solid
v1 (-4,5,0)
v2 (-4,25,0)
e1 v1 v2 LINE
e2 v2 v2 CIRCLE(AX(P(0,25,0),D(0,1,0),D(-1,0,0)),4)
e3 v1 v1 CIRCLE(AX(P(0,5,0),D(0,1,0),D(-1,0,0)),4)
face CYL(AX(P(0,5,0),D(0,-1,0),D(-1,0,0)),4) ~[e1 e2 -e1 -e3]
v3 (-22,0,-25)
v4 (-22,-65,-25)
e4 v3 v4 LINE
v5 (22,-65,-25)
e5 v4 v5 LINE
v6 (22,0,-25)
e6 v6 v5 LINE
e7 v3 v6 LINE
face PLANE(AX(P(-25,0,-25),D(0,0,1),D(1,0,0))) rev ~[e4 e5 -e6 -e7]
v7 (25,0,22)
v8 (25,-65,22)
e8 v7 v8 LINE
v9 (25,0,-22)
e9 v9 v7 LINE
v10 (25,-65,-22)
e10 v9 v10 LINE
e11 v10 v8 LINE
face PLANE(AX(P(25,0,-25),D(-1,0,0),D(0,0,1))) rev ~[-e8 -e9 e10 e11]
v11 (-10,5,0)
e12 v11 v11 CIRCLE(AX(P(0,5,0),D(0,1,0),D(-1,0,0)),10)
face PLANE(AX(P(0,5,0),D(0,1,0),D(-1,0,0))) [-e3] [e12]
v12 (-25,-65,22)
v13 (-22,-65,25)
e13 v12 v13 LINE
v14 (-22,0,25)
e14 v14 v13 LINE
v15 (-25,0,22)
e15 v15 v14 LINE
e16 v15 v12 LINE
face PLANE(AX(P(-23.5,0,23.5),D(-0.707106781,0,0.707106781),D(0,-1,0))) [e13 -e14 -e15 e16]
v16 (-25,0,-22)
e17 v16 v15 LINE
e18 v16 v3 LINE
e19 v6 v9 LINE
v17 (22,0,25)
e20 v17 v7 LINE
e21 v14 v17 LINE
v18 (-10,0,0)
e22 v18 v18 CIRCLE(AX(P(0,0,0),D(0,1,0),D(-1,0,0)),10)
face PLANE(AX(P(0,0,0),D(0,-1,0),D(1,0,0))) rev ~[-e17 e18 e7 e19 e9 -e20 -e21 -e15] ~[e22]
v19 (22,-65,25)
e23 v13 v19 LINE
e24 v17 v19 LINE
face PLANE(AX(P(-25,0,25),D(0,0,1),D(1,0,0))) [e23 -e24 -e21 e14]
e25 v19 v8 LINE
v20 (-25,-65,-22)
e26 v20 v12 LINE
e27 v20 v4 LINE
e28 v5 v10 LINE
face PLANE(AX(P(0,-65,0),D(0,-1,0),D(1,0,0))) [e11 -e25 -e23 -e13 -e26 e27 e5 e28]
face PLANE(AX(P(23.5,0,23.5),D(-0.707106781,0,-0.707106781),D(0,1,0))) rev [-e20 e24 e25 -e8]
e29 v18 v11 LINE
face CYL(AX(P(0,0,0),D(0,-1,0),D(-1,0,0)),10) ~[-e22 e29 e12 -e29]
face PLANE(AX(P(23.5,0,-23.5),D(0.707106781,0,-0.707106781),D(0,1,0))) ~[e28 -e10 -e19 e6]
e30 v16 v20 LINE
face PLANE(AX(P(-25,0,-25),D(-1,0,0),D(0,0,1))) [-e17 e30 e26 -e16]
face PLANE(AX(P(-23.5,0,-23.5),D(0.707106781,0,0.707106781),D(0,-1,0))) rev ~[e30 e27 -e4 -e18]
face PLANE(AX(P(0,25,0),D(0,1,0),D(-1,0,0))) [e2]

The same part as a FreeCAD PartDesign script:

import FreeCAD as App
import Part
import Sketcher

V = App.Vector
Q = App.Units.Quantity


def edges_at(feature, points):
    """Names of the edges that pass closest to the given points."""
    edges = feature.Shape.Edges
    near = lambda p: min(range(len(edges)), key=lambda i: edges[i].distToShape(Part.Vertex(*p))[0])
    return sorted({f"Edge{near(p) + 1}" for p in points})

doc = App.newDocument("Part")
body = doc.addObject("PartDesign::Body", "Body")

# Sketch on XZ plane
sketch1 = doc.addObject("Sketcher::SketchObject", "Sketch")
body.addObject(sketch1)
sketch1.AttachmentSupport = (doc.XZ_Plane, [""])
sketch1.MapMode = "FlatFace"
sketch1.addGeometry([
    Part.LineSegment(V(-25, 25, 0), V(-25, -25, 0)),
    Part.LineSegment(V(-25, -25, 0), V(25, -25, 0)),
    Part.LineSegment(V(25, -25, 0), V(25, 25, 0)),
    Part.LineSegment(V(25, 25, 0), V(-25, 25, 0)),
], False)
sketch1.addConstraint([
    Sketcher.Constraint("Coincident", 0, 2, 1, 1),
    Sketcher.Constraint("Coincident", 1, 2, 2, 1),
    Sketcher.Constraint("Coincident", 2, 2, 3, 1),
    Sketcher.Constraint("Coincident", 3, 2, 0, 1),
    Sketcher.Constraint("Vertical", 0),
    Sketcher.Constraint("Horizontal", 1),
    Sketcher.Constraint("Vertical", 2),
    Sketcher.Constraint("Horizontal", 3),
    Sketcher.Constraint("Symmetric", 0, 2, 2, 2, -1, 1),
    Sketcher.Constraint("Equal", 3, 0),
    Sketcher.Constraint("DistanceX", 1, 1, 1, 2, Q("50 mm")),
])
pad1 = doc.addObject("PartDesign::Pad", "Pad")
body.addObject(pad1)
pad1.Profile = sketch1
pad1.Length = 65

# Sketch on XZ plane
sketch2 = doc.addObject("Sketcher::SketchObject", "Sketch001")
body.addObject(sketch2)
sketch2.AttachmentSupport = (doc.XZ_Plane, [""])
sketch2.MapMode = "FlatFace"
sketch2.addGeometry(Part.Circle(V(0, 0, 0), V(0, 0, 1), 10), False)
sketch2.addConstraint([
    Sketcher.Constraint("Coincident", 0, 3, -1, 1),
    Sketcher.Constraint("Diameter", 0, Q("20 mm")),
])
pad2 = doc.addObject("PartDesign::Pad", "Pad001")
body.addObject(pad2)
pad2.Profile = sketch2
pad2.Length = 5
pad2.Reversed = True

# Sketch on XZ plane
sketch3 = doc.addObject("Sketcher::SketchObject", "Sketch002")
body.addObject(sketch3)
sketch3.AttachmentSupport = (doc.XZ_Plane, [""])
sketch3.MapMode = "FlatFace"
sketch3.AttachmentOffset = App.Placement(V(0, 0, -5), App.Rotation())
sketch3.addGeometry(Part.Circle(V(0, 0, 0), V(0, 0, 1), 4), False)
sketch3.addConstraint([
    Sketcher.Constraint("Coincident", 0, 3, -1, 1),
    Sketcher.Constraint("Diameter", 0, Q("8 mm")),
])
pad3 = doc.addObject("PartDesign::Pad", "Pad002")
body.addObject(pad3)
pad3.Profile = sketch3
pad3.Length = 20
pad3.Reversed = True
doc.recompute()

chamfer = doc.addObject("PartDesign::Chamfer", "Chamfer")
body.addObject(chamfer)
chamfer.Base = (pad3, edges_at(pad3, [
    (-25, -32.5, 25),
    (-25, -32.5, -25),
    (25, -32.5, -25),
    (25, -32.5, 25),
]))
chamfer.Size = 3

doc.recompute()
